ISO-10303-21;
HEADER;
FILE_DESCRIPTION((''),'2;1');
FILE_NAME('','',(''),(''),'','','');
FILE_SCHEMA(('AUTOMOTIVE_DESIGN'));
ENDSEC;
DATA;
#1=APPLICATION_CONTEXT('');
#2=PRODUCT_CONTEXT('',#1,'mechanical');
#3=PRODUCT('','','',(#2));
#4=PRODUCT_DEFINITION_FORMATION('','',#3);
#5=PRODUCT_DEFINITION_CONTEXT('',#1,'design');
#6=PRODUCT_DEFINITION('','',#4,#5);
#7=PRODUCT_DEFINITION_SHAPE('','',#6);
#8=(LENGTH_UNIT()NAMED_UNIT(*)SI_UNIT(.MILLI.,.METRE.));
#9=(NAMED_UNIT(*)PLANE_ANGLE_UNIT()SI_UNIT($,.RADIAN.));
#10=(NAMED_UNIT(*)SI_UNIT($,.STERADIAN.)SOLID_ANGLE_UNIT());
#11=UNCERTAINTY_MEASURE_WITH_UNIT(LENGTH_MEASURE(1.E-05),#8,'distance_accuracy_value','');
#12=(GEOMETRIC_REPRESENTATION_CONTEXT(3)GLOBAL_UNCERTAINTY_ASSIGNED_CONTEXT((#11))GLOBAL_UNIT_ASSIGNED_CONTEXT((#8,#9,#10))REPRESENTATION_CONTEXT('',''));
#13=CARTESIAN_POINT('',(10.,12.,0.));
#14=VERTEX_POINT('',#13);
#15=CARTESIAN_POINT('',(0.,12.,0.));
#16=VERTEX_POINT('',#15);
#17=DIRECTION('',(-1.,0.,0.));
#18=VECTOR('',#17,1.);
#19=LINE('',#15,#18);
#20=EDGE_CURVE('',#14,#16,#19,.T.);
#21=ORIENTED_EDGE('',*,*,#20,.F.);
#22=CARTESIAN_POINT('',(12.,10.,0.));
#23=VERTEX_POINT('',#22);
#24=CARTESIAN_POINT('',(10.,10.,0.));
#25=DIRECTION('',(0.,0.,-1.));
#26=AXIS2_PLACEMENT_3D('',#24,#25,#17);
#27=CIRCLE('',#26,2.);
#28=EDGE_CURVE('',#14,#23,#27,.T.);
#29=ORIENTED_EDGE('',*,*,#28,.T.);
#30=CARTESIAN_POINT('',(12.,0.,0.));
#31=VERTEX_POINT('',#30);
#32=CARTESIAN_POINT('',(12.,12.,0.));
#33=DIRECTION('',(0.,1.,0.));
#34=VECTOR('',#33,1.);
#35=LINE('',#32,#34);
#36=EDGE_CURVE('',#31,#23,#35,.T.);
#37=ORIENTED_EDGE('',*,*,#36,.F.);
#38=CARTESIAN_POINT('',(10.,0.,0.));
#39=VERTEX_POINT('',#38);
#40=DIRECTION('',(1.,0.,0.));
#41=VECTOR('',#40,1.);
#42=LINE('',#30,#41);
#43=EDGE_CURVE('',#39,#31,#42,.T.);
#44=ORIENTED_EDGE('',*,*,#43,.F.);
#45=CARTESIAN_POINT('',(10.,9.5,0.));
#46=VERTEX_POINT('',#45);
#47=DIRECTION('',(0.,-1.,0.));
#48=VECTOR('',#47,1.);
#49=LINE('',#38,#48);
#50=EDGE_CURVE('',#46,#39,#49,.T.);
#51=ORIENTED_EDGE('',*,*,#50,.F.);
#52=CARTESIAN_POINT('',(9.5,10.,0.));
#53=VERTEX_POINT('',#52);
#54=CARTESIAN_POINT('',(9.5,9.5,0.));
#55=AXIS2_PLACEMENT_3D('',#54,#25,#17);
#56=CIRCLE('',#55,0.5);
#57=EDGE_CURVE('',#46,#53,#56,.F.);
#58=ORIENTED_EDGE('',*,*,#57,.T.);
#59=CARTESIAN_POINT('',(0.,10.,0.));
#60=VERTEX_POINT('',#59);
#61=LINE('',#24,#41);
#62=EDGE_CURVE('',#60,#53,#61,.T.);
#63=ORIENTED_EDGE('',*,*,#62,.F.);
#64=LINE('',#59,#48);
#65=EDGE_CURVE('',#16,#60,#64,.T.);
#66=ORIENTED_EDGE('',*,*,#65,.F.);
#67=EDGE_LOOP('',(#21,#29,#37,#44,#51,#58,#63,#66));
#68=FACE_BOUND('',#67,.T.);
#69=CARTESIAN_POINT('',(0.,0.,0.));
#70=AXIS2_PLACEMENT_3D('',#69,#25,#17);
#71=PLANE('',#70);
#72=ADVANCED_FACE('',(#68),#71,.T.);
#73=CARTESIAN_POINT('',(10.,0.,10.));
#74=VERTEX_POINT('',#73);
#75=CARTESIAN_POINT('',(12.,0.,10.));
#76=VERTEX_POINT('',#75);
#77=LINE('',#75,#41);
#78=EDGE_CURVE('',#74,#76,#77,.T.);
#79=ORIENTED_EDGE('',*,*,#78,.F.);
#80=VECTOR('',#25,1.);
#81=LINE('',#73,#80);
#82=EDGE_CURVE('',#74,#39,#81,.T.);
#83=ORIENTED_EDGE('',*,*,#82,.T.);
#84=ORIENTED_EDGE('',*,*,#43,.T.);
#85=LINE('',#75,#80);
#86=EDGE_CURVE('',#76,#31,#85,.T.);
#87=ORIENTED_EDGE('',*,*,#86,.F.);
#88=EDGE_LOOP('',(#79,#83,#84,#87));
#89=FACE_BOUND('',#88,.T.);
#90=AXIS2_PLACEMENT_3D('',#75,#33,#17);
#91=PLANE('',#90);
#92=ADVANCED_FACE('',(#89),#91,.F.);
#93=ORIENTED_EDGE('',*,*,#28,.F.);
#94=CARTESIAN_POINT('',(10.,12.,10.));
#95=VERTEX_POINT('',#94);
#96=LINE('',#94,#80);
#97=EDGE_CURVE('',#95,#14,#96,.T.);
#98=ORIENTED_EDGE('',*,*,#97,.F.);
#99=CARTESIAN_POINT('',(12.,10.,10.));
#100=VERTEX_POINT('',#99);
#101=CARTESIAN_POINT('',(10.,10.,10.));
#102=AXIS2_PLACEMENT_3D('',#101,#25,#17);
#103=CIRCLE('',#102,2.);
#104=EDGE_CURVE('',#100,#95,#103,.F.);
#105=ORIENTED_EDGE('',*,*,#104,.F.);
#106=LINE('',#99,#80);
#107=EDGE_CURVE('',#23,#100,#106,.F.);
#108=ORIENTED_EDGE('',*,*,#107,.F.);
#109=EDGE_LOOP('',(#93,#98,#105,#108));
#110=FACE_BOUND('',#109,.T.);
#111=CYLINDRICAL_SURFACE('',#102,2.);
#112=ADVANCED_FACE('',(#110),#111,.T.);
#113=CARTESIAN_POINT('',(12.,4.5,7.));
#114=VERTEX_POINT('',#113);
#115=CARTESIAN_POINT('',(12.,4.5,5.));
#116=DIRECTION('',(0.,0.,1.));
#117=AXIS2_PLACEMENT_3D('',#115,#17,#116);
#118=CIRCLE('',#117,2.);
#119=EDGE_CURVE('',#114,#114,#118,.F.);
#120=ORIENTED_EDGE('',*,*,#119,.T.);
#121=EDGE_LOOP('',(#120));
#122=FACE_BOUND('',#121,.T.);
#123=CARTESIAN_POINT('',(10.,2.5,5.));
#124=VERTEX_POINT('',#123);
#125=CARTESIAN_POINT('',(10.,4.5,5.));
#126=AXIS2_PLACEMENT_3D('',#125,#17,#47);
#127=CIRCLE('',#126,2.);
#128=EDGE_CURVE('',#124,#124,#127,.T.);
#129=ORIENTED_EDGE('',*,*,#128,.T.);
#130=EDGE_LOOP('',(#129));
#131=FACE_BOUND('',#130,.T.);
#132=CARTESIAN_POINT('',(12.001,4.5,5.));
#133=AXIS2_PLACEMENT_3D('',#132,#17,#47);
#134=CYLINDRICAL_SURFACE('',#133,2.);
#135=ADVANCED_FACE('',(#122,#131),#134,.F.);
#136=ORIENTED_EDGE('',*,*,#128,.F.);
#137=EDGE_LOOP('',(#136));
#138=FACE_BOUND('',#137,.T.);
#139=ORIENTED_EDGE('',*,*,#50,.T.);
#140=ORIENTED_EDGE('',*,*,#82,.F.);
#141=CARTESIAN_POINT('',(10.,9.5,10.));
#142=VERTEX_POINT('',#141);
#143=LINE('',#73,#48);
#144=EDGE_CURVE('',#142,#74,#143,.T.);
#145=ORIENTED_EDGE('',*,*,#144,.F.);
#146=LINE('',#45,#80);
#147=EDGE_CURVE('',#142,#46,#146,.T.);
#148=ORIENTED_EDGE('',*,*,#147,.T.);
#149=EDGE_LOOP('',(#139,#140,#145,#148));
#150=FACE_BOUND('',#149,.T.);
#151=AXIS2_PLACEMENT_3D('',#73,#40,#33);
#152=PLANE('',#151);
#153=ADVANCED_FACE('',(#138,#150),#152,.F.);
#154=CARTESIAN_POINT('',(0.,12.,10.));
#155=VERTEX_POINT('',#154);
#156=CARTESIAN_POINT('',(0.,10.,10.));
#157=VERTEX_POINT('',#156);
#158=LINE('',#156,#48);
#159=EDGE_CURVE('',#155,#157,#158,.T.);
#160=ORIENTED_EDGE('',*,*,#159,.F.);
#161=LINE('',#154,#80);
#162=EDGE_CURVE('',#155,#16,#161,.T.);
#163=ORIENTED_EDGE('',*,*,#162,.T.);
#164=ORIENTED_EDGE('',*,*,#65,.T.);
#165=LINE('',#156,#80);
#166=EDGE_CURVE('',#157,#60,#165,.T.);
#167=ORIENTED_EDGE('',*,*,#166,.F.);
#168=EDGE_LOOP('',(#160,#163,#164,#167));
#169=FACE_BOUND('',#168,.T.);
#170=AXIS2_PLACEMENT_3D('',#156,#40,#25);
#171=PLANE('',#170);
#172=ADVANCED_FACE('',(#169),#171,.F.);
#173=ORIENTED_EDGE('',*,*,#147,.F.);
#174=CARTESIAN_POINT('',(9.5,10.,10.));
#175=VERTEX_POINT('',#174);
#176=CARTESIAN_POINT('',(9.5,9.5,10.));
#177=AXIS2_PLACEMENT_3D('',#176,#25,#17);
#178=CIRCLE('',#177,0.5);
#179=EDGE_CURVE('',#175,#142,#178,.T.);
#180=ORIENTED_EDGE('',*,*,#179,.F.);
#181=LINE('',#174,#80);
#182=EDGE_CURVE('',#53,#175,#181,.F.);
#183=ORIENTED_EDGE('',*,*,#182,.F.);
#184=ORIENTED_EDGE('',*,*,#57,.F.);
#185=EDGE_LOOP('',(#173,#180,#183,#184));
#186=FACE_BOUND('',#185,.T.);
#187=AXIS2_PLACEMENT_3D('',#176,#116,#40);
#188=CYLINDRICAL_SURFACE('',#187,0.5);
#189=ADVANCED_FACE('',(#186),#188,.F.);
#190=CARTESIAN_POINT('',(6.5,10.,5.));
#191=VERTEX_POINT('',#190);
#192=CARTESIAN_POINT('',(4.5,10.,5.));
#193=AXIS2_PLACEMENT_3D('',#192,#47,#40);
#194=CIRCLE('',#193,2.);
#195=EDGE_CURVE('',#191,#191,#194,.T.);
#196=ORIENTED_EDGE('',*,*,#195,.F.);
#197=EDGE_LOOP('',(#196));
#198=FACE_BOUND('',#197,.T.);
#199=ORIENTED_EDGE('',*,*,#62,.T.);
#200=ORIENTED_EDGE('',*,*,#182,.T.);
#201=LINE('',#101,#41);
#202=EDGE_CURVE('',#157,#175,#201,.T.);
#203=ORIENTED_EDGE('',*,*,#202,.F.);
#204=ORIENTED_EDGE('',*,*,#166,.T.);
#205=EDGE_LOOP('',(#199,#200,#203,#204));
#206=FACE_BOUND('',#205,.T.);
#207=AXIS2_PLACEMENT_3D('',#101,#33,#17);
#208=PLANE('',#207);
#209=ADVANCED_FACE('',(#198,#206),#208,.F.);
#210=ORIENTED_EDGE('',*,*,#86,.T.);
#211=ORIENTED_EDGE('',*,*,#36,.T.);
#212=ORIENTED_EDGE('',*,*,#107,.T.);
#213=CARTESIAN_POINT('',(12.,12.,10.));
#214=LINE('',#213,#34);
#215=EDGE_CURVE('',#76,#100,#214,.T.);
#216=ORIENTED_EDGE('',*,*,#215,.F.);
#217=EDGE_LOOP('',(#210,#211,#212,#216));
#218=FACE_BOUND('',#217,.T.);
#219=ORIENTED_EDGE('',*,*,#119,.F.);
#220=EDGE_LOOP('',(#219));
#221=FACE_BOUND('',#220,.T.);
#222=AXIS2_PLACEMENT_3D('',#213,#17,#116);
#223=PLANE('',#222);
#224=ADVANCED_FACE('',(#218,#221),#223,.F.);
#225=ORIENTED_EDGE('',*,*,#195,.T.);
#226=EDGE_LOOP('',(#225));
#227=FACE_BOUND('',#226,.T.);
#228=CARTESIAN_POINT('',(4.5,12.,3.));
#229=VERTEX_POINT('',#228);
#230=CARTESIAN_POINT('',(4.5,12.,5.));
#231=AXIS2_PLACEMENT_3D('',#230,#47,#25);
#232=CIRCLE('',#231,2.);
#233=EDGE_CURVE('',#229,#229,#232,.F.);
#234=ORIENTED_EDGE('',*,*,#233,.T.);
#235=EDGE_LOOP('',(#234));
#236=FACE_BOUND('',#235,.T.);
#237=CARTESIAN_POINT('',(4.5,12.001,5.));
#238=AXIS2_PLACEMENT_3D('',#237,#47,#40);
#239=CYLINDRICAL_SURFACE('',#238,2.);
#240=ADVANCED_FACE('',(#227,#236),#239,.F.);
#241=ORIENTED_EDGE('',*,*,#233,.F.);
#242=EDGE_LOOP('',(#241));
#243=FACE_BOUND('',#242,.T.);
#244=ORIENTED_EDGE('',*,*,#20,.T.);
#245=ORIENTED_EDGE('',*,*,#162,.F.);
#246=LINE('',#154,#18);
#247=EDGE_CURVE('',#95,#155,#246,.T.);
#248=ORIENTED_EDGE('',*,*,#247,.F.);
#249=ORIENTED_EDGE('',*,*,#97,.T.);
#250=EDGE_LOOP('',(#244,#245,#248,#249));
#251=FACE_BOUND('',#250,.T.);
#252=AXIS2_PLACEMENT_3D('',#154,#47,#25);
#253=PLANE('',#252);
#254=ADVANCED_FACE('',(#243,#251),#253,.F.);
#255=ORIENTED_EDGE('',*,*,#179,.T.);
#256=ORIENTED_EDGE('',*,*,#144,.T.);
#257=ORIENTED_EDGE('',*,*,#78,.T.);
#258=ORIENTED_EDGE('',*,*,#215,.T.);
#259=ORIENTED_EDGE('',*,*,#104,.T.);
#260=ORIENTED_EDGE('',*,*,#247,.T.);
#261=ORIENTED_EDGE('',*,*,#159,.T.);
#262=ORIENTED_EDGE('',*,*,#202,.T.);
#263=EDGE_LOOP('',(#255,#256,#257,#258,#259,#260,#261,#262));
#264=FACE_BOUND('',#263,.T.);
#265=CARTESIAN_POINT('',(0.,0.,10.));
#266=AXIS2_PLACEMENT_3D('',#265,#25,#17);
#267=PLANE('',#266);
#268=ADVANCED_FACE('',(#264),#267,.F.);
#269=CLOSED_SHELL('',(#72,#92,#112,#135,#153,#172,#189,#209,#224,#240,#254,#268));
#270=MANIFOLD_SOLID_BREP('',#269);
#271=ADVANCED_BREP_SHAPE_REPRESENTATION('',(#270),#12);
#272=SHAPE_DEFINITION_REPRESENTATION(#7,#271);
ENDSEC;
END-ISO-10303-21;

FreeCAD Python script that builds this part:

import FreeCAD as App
import Part
import Sketcher
Q = App.Units.Quantity


def edges_at(feature, points):
    """Names of the edges that pass closest to the given points."""
    edges = feature.Shape.Edges
    near = lambda p: min(range(len(edges)), key=lambda i: edges[i].distToShape(Part.Vertex(*p))[0])
    return sorted({f"Edge{near(p) + 1}" for p in points})


def add_polygon(sketch, points):
    """Adds a closed chain of lines whose ends are joined by coincident constraints."""
    first, n = sketch.GeometryCount, len(points)
    for a, b in zip(points, points[1:] + points[:1]):
        sketch.addGeometry(Part.LineSegment(App.Vector(*a, 0), App.Vector(*b, 0)), False)
    for i in range(n):
        sketch.addConstraint(Sketcher.Constraint("Coincident", first + i, 2, first + (i + 1) % n, 1))

doc = App.newDocument("Part")
body = doc.addObject("PartDesign::Body", "Body")

# Sketch on XY plane
sketch1 = body.newObject("Sketcher::SketchObject", "Sketch")
sketch1.AttachmentSupport = (doc.getObject("XY_Plane"), [""])
sketch1.MapMode = "FlatFace"
add_polygon(sketch1, [(12, 12), (0, 12), (0, 10), (10, 10), (10, 0), (12, 0)])  # lines 0-5
sketch1.addConstraint([
    Sketcher.Constraint("Horizontal", 0),
    Sketcher.Constraint("Vertical", 1),
    Sketcher.Constraint("Horizontal", 2),
    Sketcher.Constraint("Vertical", 3),
    Sketcher.Constraint("Horizontal", 4),
    Sketcher.Constraint("Vertical", 5),
    Sketcher.Constraint("PointOnObject", 0, 2, -2),
    Sketcher.Constraint("PointOnObject", 3, 2, -1),
    Sketcher.Constraint("Equal", 4, 1),
    Sketcher.Constraint("Equal", 2, 3),
    Sketcher.Constraint("DistanceX", 0, 2, 0, 1, Q("12 mm")),
    Sketcher.Constraint("DistanceX", 2, 1, 2, 2, Q("10 mm")),
])
pad1 = body.newObject("PartDesign::Pad", "Pad")
pad1.Profile = sketch1
pad1.Length = 10

# Sketch on YZ plane
sketch2 = body.newObject("Sketcher::SketchObject", "Sketch001")
sketch2.AttachmentSupport = (doc.getObject("YZ_Plane"), [""])
sketch2.MapMode = "FlatFace"
sketch2.AttachmentOffset = App.Placement(App.Vector(0, 0, 10), App.Rotation())
sketch2.addGeometry(Part.Circle(App.Vector(4.5, 5, 0), App.Vector(0, 0, 1), 2), False)
sketch2.addConstraint([
    Sketcher.Constraint("Diameter", 0, Q("4 mm")),
    Sketcher.Constraint("DistanceY", -1, 1, 0, 3, Q("5 mm")),
    Sketcher.Constraint("DistanceX", -1, 1, 0, 3, Q("4.5 mm")),
])
pocket1 = body.newObject("PartDesign::Pocket", "Pocket")
pocket1.Profile = sketch2
pocket1.Type = "UpToFirst"
pocket1.Reversed = True

# Sketch on XZ plane
sketch3 = body.newObject("Sketcher::SketchObject", "Sketch002")
sketch3.AttachmentSupport = (doc.getObject("XZ_Plane"), [""])
sketch3.MapMode = "FlatFace"
sketch3.AttachmentOffset = App.Placement(App.Vector(0, 0, -10), App.Rotation())
sketch3.addGeometry(Part.Circle(App.Vector(4.5, 5, 0), App.Vector(0, 0, 1), 2), False)
sketch3.addConstraint([
    Sketcher.Constraint("Diameter", 0, Q("4 mm")),
    Sketcher.Constraint("DistanceY", -1, 1, 0, 3, Q("5 mm")),
    Sketcher.Constraint("DistanceX", -1, 1, 0, 3, Q("4.5 mm")),
])
pocket2 = body.newObject("PartDesign::Pocket", "Pocket001")
pocket2.Profile = sketch3
pocket2.Type = "UpToFirst"
doc.recompute()

fillet = body.newObject("PartDesign::Fillet", "Fillet")
fillet.Base = (pocket2, edges_at(pocket2, [(12, 12, 5)]))
fillet.Radius = 2
doc.recompute()

fillet2 = body.newObject("PartDesign::Fillet", "Fillet001")
fillet2.Base = (fillet, edges_at(fillet, [(10, 10, 5)]))
fillet2.Radius = 0.5

doc.recompute()
